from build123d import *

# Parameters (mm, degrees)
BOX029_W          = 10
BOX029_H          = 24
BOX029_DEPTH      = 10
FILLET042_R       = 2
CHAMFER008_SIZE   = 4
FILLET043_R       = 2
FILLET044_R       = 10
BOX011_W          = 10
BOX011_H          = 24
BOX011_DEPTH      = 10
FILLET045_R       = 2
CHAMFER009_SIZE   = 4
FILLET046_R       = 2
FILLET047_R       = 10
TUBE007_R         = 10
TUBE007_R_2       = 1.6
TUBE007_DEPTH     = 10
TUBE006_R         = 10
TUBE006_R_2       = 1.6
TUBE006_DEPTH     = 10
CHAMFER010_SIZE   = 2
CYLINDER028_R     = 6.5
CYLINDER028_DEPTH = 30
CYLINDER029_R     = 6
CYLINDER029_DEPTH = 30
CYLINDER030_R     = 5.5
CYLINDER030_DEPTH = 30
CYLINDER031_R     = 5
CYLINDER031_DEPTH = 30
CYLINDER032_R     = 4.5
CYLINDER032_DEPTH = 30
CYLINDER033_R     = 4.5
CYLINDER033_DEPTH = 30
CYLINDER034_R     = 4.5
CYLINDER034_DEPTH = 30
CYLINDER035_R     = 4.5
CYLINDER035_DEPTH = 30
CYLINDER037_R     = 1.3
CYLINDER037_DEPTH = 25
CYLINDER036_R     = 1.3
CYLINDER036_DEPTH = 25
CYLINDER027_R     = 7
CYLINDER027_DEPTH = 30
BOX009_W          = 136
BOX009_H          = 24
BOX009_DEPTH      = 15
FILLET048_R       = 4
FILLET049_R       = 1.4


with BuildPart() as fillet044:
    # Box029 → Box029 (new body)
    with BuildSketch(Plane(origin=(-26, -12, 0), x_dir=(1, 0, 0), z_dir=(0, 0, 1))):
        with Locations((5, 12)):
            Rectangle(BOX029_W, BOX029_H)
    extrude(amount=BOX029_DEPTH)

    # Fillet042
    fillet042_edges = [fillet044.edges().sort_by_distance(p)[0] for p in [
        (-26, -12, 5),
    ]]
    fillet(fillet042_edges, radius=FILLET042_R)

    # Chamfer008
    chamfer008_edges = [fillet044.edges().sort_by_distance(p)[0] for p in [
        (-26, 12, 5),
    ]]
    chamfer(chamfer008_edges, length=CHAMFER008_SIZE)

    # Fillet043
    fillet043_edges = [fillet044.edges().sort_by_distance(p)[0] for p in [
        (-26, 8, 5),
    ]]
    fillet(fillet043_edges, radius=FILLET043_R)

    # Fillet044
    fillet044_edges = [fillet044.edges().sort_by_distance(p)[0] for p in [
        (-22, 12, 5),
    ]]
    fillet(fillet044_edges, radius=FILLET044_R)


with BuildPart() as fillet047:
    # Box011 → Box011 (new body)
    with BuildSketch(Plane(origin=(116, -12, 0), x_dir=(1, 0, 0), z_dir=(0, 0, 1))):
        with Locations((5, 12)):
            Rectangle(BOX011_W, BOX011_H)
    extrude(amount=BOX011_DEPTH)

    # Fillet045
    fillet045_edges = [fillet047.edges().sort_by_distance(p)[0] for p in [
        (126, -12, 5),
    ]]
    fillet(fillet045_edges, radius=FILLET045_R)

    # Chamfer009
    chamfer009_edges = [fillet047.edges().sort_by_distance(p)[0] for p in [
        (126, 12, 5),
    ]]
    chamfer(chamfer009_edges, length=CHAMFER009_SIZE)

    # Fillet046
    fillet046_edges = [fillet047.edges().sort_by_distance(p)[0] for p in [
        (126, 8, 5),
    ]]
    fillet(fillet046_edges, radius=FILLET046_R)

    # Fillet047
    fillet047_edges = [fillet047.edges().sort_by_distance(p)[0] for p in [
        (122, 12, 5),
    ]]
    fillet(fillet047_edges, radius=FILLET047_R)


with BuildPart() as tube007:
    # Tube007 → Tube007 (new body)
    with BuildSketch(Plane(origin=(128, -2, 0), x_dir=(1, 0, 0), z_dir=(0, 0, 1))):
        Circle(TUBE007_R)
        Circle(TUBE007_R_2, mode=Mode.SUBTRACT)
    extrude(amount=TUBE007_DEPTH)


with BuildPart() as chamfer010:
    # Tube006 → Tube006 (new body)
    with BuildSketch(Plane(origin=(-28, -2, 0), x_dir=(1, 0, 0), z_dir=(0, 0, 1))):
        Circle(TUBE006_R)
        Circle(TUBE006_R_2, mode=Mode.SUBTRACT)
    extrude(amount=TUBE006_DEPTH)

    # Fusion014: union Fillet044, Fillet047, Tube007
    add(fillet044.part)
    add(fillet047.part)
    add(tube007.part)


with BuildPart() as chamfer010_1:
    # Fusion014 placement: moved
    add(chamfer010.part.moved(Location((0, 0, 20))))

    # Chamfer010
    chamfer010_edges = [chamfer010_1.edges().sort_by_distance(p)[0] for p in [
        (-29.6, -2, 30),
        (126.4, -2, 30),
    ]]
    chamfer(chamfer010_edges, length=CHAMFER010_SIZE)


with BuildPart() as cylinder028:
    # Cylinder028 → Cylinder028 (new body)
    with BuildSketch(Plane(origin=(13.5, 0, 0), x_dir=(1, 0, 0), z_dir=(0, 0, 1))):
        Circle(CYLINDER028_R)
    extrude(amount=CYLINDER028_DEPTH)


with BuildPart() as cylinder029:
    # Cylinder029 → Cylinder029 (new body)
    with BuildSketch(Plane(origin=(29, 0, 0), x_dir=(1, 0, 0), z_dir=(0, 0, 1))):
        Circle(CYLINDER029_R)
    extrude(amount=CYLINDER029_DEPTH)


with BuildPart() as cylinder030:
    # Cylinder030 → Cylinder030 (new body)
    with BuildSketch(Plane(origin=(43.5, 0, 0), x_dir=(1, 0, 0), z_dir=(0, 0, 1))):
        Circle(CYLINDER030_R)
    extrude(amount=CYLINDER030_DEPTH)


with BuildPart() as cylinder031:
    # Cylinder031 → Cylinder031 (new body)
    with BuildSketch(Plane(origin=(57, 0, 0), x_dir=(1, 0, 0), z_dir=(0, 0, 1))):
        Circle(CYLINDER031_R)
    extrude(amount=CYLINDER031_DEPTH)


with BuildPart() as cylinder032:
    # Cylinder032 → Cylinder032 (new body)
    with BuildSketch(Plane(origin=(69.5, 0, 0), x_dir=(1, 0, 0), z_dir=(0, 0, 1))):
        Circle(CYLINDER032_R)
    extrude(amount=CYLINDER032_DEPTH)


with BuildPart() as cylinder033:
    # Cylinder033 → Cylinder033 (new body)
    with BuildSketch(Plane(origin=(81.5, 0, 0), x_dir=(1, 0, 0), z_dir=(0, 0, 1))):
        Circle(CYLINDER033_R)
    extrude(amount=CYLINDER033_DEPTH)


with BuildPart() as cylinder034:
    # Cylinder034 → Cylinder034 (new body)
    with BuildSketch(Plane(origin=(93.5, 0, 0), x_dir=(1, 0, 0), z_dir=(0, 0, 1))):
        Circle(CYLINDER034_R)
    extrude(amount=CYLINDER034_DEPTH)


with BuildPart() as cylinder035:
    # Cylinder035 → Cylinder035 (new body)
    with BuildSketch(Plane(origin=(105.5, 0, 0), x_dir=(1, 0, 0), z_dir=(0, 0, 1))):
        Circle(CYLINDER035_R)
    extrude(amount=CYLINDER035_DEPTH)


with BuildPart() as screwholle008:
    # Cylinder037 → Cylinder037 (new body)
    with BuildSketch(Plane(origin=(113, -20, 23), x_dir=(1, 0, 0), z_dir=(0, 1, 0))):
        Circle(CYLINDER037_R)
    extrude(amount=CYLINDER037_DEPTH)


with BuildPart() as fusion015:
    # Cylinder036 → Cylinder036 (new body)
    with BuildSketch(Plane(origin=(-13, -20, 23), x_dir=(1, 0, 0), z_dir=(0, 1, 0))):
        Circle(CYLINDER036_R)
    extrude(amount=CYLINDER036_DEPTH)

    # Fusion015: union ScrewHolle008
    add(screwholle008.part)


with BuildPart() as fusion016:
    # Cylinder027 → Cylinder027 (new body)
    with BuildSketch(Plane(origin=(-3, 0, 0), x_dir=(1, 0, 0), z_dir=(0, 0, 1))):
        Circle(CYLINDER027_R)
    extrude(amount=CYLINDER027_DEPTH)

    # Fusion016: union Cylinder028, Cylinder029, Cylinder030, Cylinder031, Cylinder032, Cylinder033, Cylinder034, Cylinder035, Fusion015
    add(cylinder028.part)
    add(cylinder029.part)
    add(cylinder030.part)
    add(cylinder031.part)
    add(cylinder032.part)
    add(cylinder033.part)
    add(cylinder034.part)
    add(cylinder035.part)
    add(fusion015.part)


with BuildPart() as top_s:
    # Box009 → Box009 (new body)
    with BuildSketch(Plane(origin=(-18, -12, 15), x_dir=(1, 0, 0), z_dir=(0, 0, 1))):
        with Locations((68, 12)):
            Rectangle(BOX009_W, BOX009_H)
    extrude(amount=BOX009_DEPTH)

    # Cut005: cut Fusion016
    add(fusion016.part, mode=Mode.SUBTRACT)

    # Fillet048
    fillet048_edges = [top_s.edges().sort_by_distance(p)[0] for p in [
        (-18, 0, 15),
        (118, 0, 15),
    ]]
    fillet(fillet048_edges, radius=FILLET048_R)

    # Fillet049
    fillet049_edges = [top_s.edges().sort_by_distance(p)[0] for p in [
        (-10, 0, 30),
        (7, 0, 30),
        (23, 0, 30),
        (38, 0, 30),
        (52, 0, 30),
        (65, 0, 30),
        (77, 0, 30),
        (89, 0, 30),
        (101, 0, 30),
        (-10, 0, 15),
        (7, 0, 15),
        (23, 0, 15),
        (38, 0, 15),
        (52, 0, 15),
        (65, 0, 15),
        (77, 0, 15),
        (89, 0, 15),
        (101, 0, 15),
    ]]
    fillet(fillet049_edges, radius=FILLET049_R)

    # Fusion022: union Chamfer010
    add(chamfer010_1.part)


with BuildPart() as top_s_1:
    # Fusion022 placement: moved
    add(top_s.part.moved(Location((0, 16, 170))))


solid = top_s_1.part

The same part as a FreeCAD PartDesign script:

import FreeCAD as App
import Part
import Sketcher

V = App.Vector


def edges_at(feature, points):
    """Names of the edges that pass closest to the given points."""
    edges = feature.Shape.Edges
    near = lambda p: min(range(len(edges)), key=lambda i: edges[i].distToShape(Part.Vertex(*p))[0])
    return sorted({f"Edge{near(p) + 1}" for p in points})


def add_polygon(sketch, points):
    """Adds a closed chain of lines whose ends are joined by coincident constraints."""
    first, n = sketch.GeometryCount, len(points)
    for a, b in zip(points, points[1:] + points[:1]):
        sketch.addGeometry(Part.LineSegment(App.Vector(*a, 0), App.Vector(*b, 0)), False)
    for i in range(n):
        sketch.addConstraint(Sketcher.Constraint("Coincident", first + i, 2, first + (i + 1) % n, 1))

doc = App.newDocument("Part")
body = doc.addObject("PartDesign::Body", "Body")

# Sketch on XY plane
sketch1 = body.newObject("Sketcher::SketchObject", "Sketch")
sketch1.AttachmentSupport = (doc.getObject("XY_Plane"), [""])
sketch1.MapMode = "FlatFace"
add_polygon(sketch1, [(-26, 12), (-26, -12), (-16, -12), (-16, 12)])  # lines 0-3
sketch1.addConstraint([
    Sketcher.Constraint("Vertical", 0),
    Sketcher.Constraint("Horizontal", 1),
    Sketcher.Constraint("Vertical", 2),
    Sketcher.Constraint("Horizontal", 3),
    Sketcher.Constraint("DistanceX", 1, 1, 1, 2, 10.0),
    Sketcher.Constraint("DistanceY", 0, 2, 0, 1, 24.0),
    Sketcher.Constraint("DistanceX", 0, 2, -1, 1, 26.0),
    Sketcher.Constraint("DistanceY", 0, 2, -1, 1, 12.0),
])
pad1 = body.newObject("PartDesign::Pad", "Pad")
pad1.Profile = sketch1
pad1.Length = 10
doc.recompute()

fillet = body.newObject("PartDesign::Fillet", "Fillet")
fillet.Base = (pad1, edges_at(pad1, [(-26, -12, 5)]))
fillet.Radius = 2
doc.recompute()

chamfer = body.newObject("PartDesign::Chamfer", "Chamfer")
chamfer.Base = (fillet, edges_at(fillet, [(-26, 12, 5)]))
chamfer.Size = 4
doc.recompute()

fillet2 = body.newObject("PartDesign::Fillet", "Fillet001")
fillet2.Base = (chamfer, edges_at(chamfer, [(-26, 8, 5)]))
fillet2.Radius = 2
doc.recompute()

fillet3 = body.newObject("PartDesign::Fillet", "Fillet002")
fillet3.Base = (fillet2, edges_at(fillet2, [(-22, 12, 5)]))
fillet3.Radius = 10
body2 = doc.addObject("PartDesign::Body", "Body001")

# Sketch on XY plane
sketch2 = body2.newObject("Sketcher::SketchObject", "Sketch001")
sketch2.AttachmentSupport = (doc.getObject("XY_Plane001"), [""])
sketch2.MapMode = "FlatFace"
add_polygon(sketch2, [(116, 12), (116, -12), (126, -12), (126, 12)])  # lines 0-3
sketch2.addConstraint([
    Sketcher.Constraint("Vertical", 0),
    Sketcher.Constraint("Horizontal", 1),
    Sketcher.Constraint("Vertical", 2),
    Sketcher.Constraint("Horizontal", 3),
    Sketcher.Constraint("DistanceX", 1, 1, 1, 2, 10.0),
    Sketcher.Constraint("DistanceY", 0, 2, 0, 1, 24.0),
    Sketcher.Constraint("DistanceX", -1, 1, 0, 2, 116.0),
    Sketcher.Constraint("DistanceY", 0, 2, -1, 1, 12.0),
])
pad2 = body2.newObject("PartDesign::Pad", "Pad001")
pad2.Profile = sketch2
pad2.Length = 10
doc.recompute()

fillet4 = body2.newObject("PartDesign::Fillet", "Fillet003")
fillet4.Base = (pad2, edges_at(pad2, [(126, -12, 5)]))
fillet4.Radius = 2
doc.recompute()

chamfer2 = body2.newObject("PartDesign::Chamfer", "Chamfer001")
chamfer2.Base = (fillet4, edges_at(fillet4, [(126, 12, 5)]))
chamfer2.Size = 4
doc.recompute()

fillet5 = body2.newObject("PartDesign::Fillet", "Fillet004")
fillet5.Base = (chamfer2, edges_at(chamfer2, [(126, 8, 5)]))
fillet5.Radius = 2
doc.recompute()

fillet6 = body2.newObject("PartDesign::Fillet", "Fillet005")
fillet6.Base = (fillet5, edges_at(fillet5, [(122, 12, 5)]))
fillet6.Radius = 10
body3 = doc.addObject("PartDesign::Body", "Body002")

# Sketch on XY plane
sketch3 = body3.newObject("Sketcher::SketchObject", "Sketch002")
sketch3.AttachmentSupport = (doc.getObject("XY_Plane002"), [""])
sketch3.MapMode = "FlatFace"
sketch3.addGeometry([
    Part.Circle(V(128, -2, 0), V(0, 0, 1), 10),
    Part.Circle(V(128, -2, 0), V(0, 0, 1), 1.6),
], False)
sketch3.addConstraint([
    Sketcher.Constraint("Coincident", 1, 3, 0, 3),
    Sketcher.Constraint("Diameter", 0, 20.0),
    Sketcher.Constraint("Diameter", 1, 3.2),
    Sketcher.Constraint("DistanceX", -1, 1, 0, 3, 128.0),
    Sketcher.Constraint("DistanceY", 0, 3, -1, 1, 2.0),
])
pad3 = body3.newObject("PartDesign::Pad", "Pad002")
pad3.Profile = sketch3
pad3.Length = 10
body4 = doc.addObject("PartDesign::Body", "Body003")
body4.AllowCompound = True

# Sketch on XY plane
sketch4 = body4.newObject("Sketcher::SketchObject", "Sketch003")
sketch4.AttachmentSupport = (doc.getObject("XY_Plane003"), [""])
sketch4.MapMode = "FlatFace"
sketch4.addGeometry([
    Part.Circle(V(-28, -2, 0), V(0, 0, 1), 10),
    Part.Circle(V(-28, -2, 0), V(0, 0, 1), 1.6),
], False)
sketch4.addConstraint([
    Sketcher.Constraint("Coincident", 1, 3, 0, 3),
    Sketcher.Constraint("Diameter", 0, 20.0),
    Sketcher.Constraint("Diameter", 1, 3.2),
    Sketcher.Constraint("DistanceX", 0, 3, -1, 1, 28.0),
    Sketcher.Constraint("DistanceY", 0, 3, -1, 1, 2.0),
])
pad4 = body4.newObject("PartDesign::Pad", "Pad003")
pad4.Profile = sketch4
pad4.Length = 10
doc.recompute()

boolean = body4.newObject("PartDesign::Boolean", "Boolean")
boolean.Type = "Fuse"
boolean.addObjects([body])
doc.recompute()

boolean2 = body4.newObject("PartDesign::Boolean", "Boolean001")
boolean2.Type = "Fuse"
boolean2.addObjects([body2])
doc.recompute()

boolean3 = body4.newObject("PartDesign::Boolean", "Boolean002")
boolean3.Type = "Fuse"
boolean3.addObjects([body3])
body5 = doc.addObject("PartDesign::Body", "Body004")
body5.AllowCompound = True
doc.recompute()

body4.Placement = App.Placement(V(0, 0, 20), App.Rotation(V(0, 0, 1), 0))
boolean4 = body5.newObject("PartDesign::Boolean", "Boolean003")
boolean4.Type = "Fuse"
boolean4.addObjects([body4])
doc.recompute()

chamfer3 = body5.newObject("PartDesign::Chamfer", "Chamfer002")
chamfer3.Base = (boolean4, edges_at(boolean4, [(-29.6, -2, 30), (126.4, -2, 30)]))
chamfer3.Size = 2
body6 = doc.addObject("PartDesign::Body", "Body005")

# Sketch on XY plane
sketch5 = body6.newObject("Sketcher::SketchObject", "Sketch004")
sketch5.AttachmentSupport = (doc.getObject("XY_Plane005"), [""])
sketch5.MapMode = "FlatFace"
sketch5.addGeometry(Part.Circle(V(14, 0, 0), V(0, 0, 1), 6), False)
sketch5.addConstraint([
    Sketcher.Constraint("PointOnObject", 0, 3, -1),
    Sketcher.Constraint("Diameter", 0, 13.0),
    Sketcher.Constraint("DistanceX", -1, 1, 0, 3, 13.5),
])
pad5 = body6.newObject("PartDesign::Pad", "Pad004")
pad5.Profile = sketch5
pad5.Length = 30
body7 = doc.addObject("PartDesign::Body", "Body006")

# Sketch on XY plane
sketch6 = body7.newObject("Sketcher::SketchObject", "Sketch005")
sketch6.AttachmentSupport = (doc.getObject("XY_Plane006"), [""])
sketch6.MapMode = "FlatFace"
sketch6.addGeometry(Part.Circle(V(29, 0, 0), V(0, 0, 1), 6), False)
sketch6.addConstraint([
    Sketcher.Constraint("PointOnObject", 0, 3, -1),
    Sketcher.Constraint("Diameter", 0, 12.0),
    Sketcher.Constraint("DistanceX", -1, 1, 0, 3, 29.0),
])
pad6 = body7.newObject("PartDesign::Pad", "Pad005")
pad6.Profile = sketch6
pad6.Length = 30
body8 = doc.addObject("PartDesign::Body", "Body007")

# Sketch on XY plane
sketch7 = body8.newObject("Sketcher::SketchObject", "Sketch006")
sketch7.AttachmentSupport = (doc.getObject("XY_Plane007"), [""])
sketch7.MapMode = "FlatFace"
sketch7.addGeometry(Part.Circle(V(44, 0, 0), V(0, 0, 1), 6), False)
sketch7.addConstraint([
    Sketcher.Constraint("PointOnObject", 0, 3, -1),
    Sketcher.Constraint("Diameter", 0, 11.0),
    Sketcher.Constraint("DistanceX", -1, 1, 0, 3, 43.5),
])
pad7 = body8.newObject("PartDesign::Pad", "Pad006")
pad7.Profile = sketch7
pad7.Length = 30
body9 = doc.addObject("PartDesign::Body", "Body008")

# Sketch on XY plane
sketch8 = body9.newObject("Sketcher::SketchObject", "Sketch007")
sketch8.AttachmentSupport = (doc.getObject("XY_Plane008"), [""])
sketch8.MapMode = "FlatFace"
sketch8.addGeometry(Part.Circle(V(57, 0, 0), V(0, 0, 1), 5), False)
sketch8.addConstraint([
    Sketcher.Constraint("PointOnObject", 0, 3, -1),
    Sketcher.Constraint("Diameter", 0, 10.0),
    Sketcher.Constraint("DistanceX", -1, 1, 0, 3, 57.0),
])
pad8 = body9.newObject("PartDesign::Pad", "Pad007")
pad8.Profile = sketch8
pad8.Length = 30
body10 = doc.addObject("PartDesign::Body", "Body009")

# Sketch on XY plane
sketch9 = body10.newObject("Sketcher::SketchObject", "Sketch008")
sketch9.AttachmentSupport = (doc.getObject("XY_Plane009"), [""])
sketch9.MapMode = "FlatFace"
sketch9.addGeometry(Part.Circle(V(69.5, 0, 0), V(0, 0, 1), 4.5), False)
sketch9.addConstraint([
    Sketcher.Constraint("PointOnObject", 0, 3, -1),
    Sketcher.Constraint("Diameter", 0, 9.0),
    Sketcher.Constraint("DistanceX", -1, 1, 0, 3, 69.5),
])
pad9 = body10.newObject("PartDesign::Pad", "Pad008")
pad9.Profile = sketch9
pad9.Length = 30
body11 = doc.addObject("PartDesign::Body", "Body010")

# Sketch on XY plane
sketch10 = body11.newObject("Sketcher::SketchObject", "Sketch009")
sketch10.AttachmentSupport = (doc.getObject("XY_Plane010"), [""])
sketch10.MapMode = "FlatFace"
sketch10.addGeometry(Part.Circle(V(81.5, 0, 0), V(0, 0, 1), 4.5), False)
sketch10.addConstraint([
    Sketcher.Constraint("PointOnObject", 0, 3, -1),
    Sketcher.Constraint("Diameter", 0, 9.0),
    Sketcher.Constraint("DistanceX", -1, 1, 0, 3, 81.5),
])
pad10 = body11.newObject("PartDesign::Pad", "Pad009")
pad10.Profile = sketch10
pad10.Length = 30
body12 = doc.addObject("PartDesign::Body", "Body011")

# Sketch on XY plane
sketch11 = body12.newObject("Sketcher::SketchObject", "Sketch010")
sketch11.AttachmentSupport = (doc.getObject("XY_Plane011"), [""])
sketch11.MapMode = "FlatFace"
sketch11.addGeometry(Part.Circle(V(93.5, 0, 0), V(0, 0, 1), 4.5), False)
sketch11.addConstraint([
    Sketcher.Constraint("PointOnObject", 0, 3, -1),
    Sketcher.Constraint("Diameter", 0, 9.0),
    Sketcher.Constraint("DistanceX", -1, 1, 0, 3, 93.5),
])
pad11 = body12.newObject("PartDesign::Pad", "Pad010")
pad11.Profile = sketch11
pad11.Length = 30
body13 = doc.addObject("PartDesign::Body", "Body012")

# Sketch on XY plane
sketch12 = body13.newObject("Sketcher::SketchObject", "Sketch011")
sketch12.AttachmentSupport = (doc.getObject("XY_Plane012"), [""])
sketch12.MapMode = "FlatFace"
sketch12.addGeometry(Part.Circle(V(105.5, 0, 0), V(0, 0, 1), 4.5), False)
sketch12.addConstraint([
    Sketcher.Constraint("PointOnObject", 0, 3, -1),
    Sketcher.Constraint("Diameter", 0, 9.0),
    Sketcher.Constraint("DistanceX", -1, 1, 0, 3, 105.5),
])
pad12 = body13.newObject("PartDesign::Pad", "Pad011")
pad12.Profile = sketch12
pad12.Length = 30
body14 = doc.addObject("PartDesign::Body", "Body013")

# Sketch on XZ plane
sketch13 = body14.newObject("Sketcher::SketchObject", "Sketch012")
sketch13.AttachmentSupport = (doc.getObject("XZ_Plane013"), [""])
sketch13.MapMode = "FlatFace"
sketch13.AttachmentOffset = App.Placement(V(0, 0, 20), App.Rotation())
sketch13.addGeometry(Part.Circle(V(113, 23, 0), V(0, 0, 1), 1.3), False)
sketch13.addConstraint([
    Sketcher.Constraint("Diameter", 0, 2.6),
    Sketcher.Constraint("DistanceX", -1, 1, 0, 3, 113.0),
    Sketcher.Constraint("DistanceY", -1, 1, 0, 3, 23.0),
])
pad13 = body14.newObject("PartDesign::Pad", "Pad012")
pad13.Profile = sketch13
pad13.Length = 25
pad13.Reversed = True
body15 = doc.addObject("PartDesign::Body", "Body014")
body15.AllowCompound = True

# Sketch on XZ plane
sketch14 = body15.newObject("Sketcher::SketchObject", "Sketch013")
sketch14.AttachmentSupport = (doc.getObject("XZ_Plane014"), [""])
sketch14.MapMode = "FlatFace"
sketch14.AttachmentOffset = App.Placement(V(0, 0, 20), App.Rotation())
sketch14.addGeometry(Part.Circle(V(-13, 23, 0), V(0, 0, 1), 1.3), False)
sketch14.addConstraint([
    Sketcher.Constraint("Diameter", 0, 2.6),
    Sketcher.Constraint("DistanceX", 0, 3, -1, 1, 13.0),
    Sketcher.Constraint("DistanceY", -1, 1, 0, 3, 23.0),
])
pad14 = body15.newObject("PartDesign::Pad", "Pad013")
pad14.Profile = sketch14
pad14.Length = 25
pad14.Reversed = True
doc.recompute()

boolean5 = body15.newObject("PartDesign::Boolean", "Boolean004")
boolean5.Type = "Fuse"
boolean5.addObjects([body14])
body16 = doc.addObject("PartDesign::Body", "Body015")
body16.AllowCompound = True

# Sketch on XY plane
sketch15 = body16.newObject("Sketcher::SketchObject", "Sketch014")
sketch15.AttachmentSupport = (doc.getObject("XY_Plane015"), [""])
sketch15.MapMode = "FlatFace"
sketch15.addGeometry(Part.Circle(V(-3, 0, 0), V(0, 0, 1), 7), False)
sketch15.addConstraint([
    Sketcher.Constraint("PointOnObject", 0, 3, -1),
    Sketcher.Constraint("Diameter", 0, 14.0),
    Sketcher.Constraint("DistanceX", 0, 3, -1, 1, 3.0),
])
pad15 = body16.newObject("PartDesign::Pad", "Pad014")
pad15.Profile = sketch15
pad15.Length = 30
doc.recompute()

boolean6 = body16.newObject("PartDesign::Boolean", "Boolean005")
boolean6.Type = "Fuse"
boolean6.addObjects([body6])
doc.recompute()

boolean7 = body16.newObject("PartDesign::Boolean", "Boolean006")
boolean7.Type = "Fuse"
boolean7.addObjects([body7])
doc.recompute()

boolean8 = body16.newObject("PartDesign::Boolean", "Boolean007")
boolean8.Type = "Fuse"
boolean8.addObjects([body8])
doc.recompute()

boolean9 = body16.newObject("PartDesign::Boolean", "Boolean008")
boolean9.Type = "Fuse"
boolean9.addObjects([body9])
doc.recompute()

boolean10 = body16.newObject("PartDesign::Boolean", "Boolean009")
boolean10.Type = "Fuse"
boolean10.addObjects([body10])
doc.recompute()

boolean11 = body16.newObject("PartDesign::Boolean", "Boolean010")
boolean11.Type = "Fuse"
boolean11.addObjects([body11])
doc.recompute()

boolean12 = body16.newObject("PartDesign::Boolean", "Boolean011")
boolean12.Type = "Fuse"
boolean12.addObjects([body12])
doc.recompute()

boolean13 = body16.newObject("PartDesign::Boolean", "Boolean012")
boolean13.Type = "Fuse"
boolean13.addObjects([body13])
doc.recompute()

boolean14 = body16.newObject("PartDesign::Boolean", "Boolean013")
boolean14.Type = "Fuse"
boolean14.addObjects([body15])
body17 = doc.addObject("PartDesign::Body", "Body016")

# Sketch on XY plane
sketch16 = body17.newObject("Sketcher::SketchObject", "Sketch015")
sketch16.AttachmentSupport = (doc.getObject("XY_Plane016"), [""])
sketch16.MapMode = "FlatFace"
sketch16.AttachmentOffset = App.Placement(V(0, 0, 15), App.Rotation())
add_polygon(sketch16, [(-18, 12), (-18, -12), (118, -12), (118, 12)])  # lines 0-3
sketch16.addConstraint([
    Sketcher.Constraint("Vertical", 0),
    Sketcher.Constraint("Horizontal", 1),
    Sketcher.Constraint("Vertical", 2),
    Sketcher.Constraint("Horizontal", 3),
    Sketcher.Constraint("DistanceX", 1, 1, 1, 2, 136.0),
    Sketcher.Constraint("DistanceY", 0, 2, 0, 1, 24.0),
    Sketcher.Constraint("DistanceX", 0, 2, -1, 1, 18.0),
    Sketcher.Constraint("DistanceY", 0, 2, -1, 1, 12.0),
])
pad16 = body17.newObject("PartDesign::Pad", "Pad015")
pad16.Profile = sketch16
pad16.Length = 15
doc.recompute()

boolean15 = body17.newObject("PartDesign::Boolean", "Boolean014")
boolean15.Type = "Cut"
boolean15.addObjects([body16])
doc.recompute()

fillet7 = body17.newObject("PartDesign::Fillet", "Fillet006")
fillet7.Base = (boolean15, edges_at(boolean15, [(-18, 0, 15), (118, 0, 15)]))
fillet7.Radius = 4
doc.recompute()

fillet8 = body17.newObject("PartDesign::Fillet", "Fillet007")
fillet8.Base = (fillet7, edges_at(fillet7, [
    (-10, 0, 30),
    (7, 0, 30),
    (23, 0, 30),
    (38, 0, 30),
    (52, 0, 30),
    (65, 0, 30),
    (77, 0, 30),
    (89, 0, 30),
    (101, 0, 30),
    (-10, 0, 15),
    (7, 0, 15),
    (23, 0, 15),
    (38, 0, 15),
    (52, 0, 15),
    (65, 0, 15),
    (77, 0, 15),
    (89, 0, 15),
    (101, 0, 15),
]))
fillet8.Radius = 1.4
doc.recompute()

boolean16 = body17.newObject("PartDesign::Boolean", "Boolean015")
boolean16.Type = "Fuse"
boolean16.addObjects([body5])
body18 = doc.addObject("PartDesign::Body", "Body017")
doc.recompute()

body17.Placement = App.Placement(V(0, 16, 170), App.Rotation(V(0, 0, 1), 0))
boolean17 = body18.newObject("PartDesign::Boolean", "Boolean016")
boolean17.Type = "Fuse"
boolean17.addObjects([body17])

doc.recompute()
